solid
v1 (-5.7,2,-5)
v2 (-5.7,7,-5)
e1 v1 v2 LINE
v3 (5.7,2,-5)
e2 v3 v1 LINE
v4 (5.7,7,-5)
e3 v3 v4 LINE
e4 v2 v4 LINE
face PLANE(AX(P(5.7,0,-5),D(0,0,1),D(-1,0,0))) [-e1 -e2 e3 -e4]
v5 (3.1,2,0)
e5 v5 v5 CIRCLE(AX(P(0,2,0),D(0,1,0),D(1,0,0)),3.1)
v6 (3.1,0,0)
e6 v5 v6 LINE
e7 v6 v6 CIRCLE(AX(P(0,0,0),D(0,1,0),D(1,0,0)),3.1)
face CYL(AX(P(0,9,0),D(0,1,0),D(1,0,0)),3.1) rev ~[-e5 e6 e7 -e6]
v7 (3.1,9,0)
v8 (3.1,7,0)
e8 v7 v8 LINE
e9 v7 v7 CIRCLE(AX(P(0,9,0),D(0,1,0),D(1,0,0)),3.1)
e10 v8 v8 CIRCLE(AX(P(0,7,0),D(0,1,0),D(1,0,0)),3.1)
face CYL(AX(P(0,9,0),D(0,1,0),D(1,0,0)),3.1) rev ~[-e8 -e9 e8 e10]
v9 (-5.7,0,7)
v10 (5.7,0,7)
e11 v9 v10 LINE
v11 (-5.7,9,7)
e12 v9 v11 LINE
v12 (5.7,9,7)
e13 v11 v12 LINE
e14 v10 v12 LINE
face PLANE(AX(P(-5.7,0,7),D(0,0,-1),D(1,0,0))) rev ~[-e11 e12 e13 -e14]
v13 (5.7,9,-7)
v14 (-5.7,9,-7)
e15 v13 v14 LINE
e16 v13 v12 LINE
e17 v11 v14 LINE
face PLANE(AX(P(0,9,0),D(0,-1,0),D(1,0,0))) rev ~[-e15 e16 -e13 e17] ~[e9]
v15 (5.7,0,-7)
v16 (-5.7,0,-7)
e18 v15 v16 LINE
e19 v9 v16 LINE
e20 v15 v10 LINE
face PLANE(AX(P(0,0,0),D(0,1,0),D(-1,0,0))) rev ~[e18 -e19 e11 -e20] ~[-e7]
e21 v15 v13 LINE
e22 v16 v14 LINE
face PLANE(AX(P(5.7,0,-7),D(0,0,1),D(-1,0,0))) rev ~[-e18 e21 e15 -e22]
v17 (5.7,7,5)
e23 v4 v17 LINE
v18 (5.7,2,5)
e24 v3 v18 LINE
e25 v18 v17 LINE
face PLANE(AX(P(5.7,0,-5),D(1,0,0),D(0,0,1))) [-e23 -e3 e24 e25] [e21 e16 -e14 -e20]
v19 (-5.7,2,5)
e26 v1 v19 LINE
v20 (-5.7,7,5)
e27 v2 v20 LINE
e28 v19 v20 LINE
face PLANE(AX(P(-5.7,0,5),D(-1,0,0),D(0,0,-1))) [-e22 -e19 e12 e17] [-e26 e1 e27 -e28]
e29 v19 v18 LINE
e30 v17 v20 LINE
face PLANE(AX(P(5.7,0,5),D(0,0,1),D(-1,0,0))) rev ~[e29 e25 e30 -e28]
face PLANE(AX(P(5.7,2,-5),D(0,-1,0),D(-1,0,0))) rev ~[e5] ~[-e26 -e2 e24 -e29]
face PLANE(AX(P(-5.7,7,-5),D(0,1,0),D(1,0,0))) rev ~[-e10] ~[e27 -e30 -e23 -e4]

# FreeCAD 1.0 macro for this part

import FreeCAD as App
import Part
import Sketcher
from FreeCAD import Vector
Q = App.Units.Quantity


def add_polygon(sketch, points):
    """Adds a closed chain of lines whose ends are joined by coincident constraints."""
    first, n = sketch.GeometryCount, len(points)
    for a, b in zip(points, points[1:] + points[:1]):
        sketch.addGeometry(Part.LineSegment(App.Vector(*a, 0), App.Vector(*b, 0)), False)
    for i in range(n):
        sketch.addConstraint(Sketcher.Constraint("Coincident", first + i, 2, first + (i + 1) % n, 1))

doc = App.newDocument("Part")
body = doc.addObject("PartDesign::Body", "Body")
body.AllowCompound = True

sketch1 = body.newObject("Sketcher::SketchObject", "Sketch")
sketch1.AttachmentSupport = (doc.getObject("XZ_Plane"), [""])
sketch1.MapMode = "FlatFace"
add_polygon(sketch1, [(-5.7, 5), (5.7, 5), (5.7, -5), (-5.7, -5)])
sketch1.addGeometry(Part.Circle(Vector(0, 0, 0), Vector(0, 0, 1), 2.6), False)
sketch1.addConstraint(Sketcher.Constraint("Horizontal", 0))
sketch1.addConstraint(Sketcher.Constraint("Vertical", 1))
sketch1.addConstraint(Sketcher.Constraint("Horizontal", 2))
sketch1.addConstraint(Sketcher.Constraint("Vertical", 3))
sketch1.addConstraint(Sketcher.Constraint("Coincident", 4, 3, -1, 1))
sketch1.addConstraint(Sketcher.Constraint("Symmetric", 0, 2, 2, 2, -1, 1))
sketch1.addConstraint(Sketcher.Constraint("Diameter", 4, Q("5.2 mm")))
sketch1.addConstraint(Sketcher.Constraint("DistanceY", 1, 2, 1, 1, Q("10 mm")))
sketch1.addConstraint(Sketcher.Constraint("DistanceX", 0, 1, 0, 2, Q("11.4 mm")))
pad1 = body.newObject("PartDesign::Pad", "Pad")
pad1.Profile = sketch1
pad1.Length = 9
pad1.Reversed = True

sketch2 = body.newObject("Sketcher::SketchObject", "Sketch001")
sketch2.AttachmentSupport = (doc.getObject("XY_Plane"), [""])
sketch2.MapMode = "FlatFace"
sketch2.AttachmentOffset = App.Placement(Vector(0, 0, -5), App.Rotation())
add_polygon(sketch2, [(6, 7), (6, 2), (-6, 2), (-6, 7)])
sketch2.addConstraint(Sketcher.Constraint("Vertical", 0))
sketch2.addConstraint(Sketcher.Constraint("Horizontal", 1))
sketch2.addConstraint(Sketcher.Constraint("Vertical", 2))
sketch2.addConstraint(Sketcher.Constraint("Horizontal", 3))
sketch2.addConstraint(Sketcher.Constraint("DistanceY", -1, 1, 0, 2, Q("2 mm")))
sketch2.addConstraint(Sketcher.Constraint("DistanceY", 0, 2, 0, 1, Q("5 mm")))
sketch2.addConstraint(Sketcher.Constraint("DistanceX", 1, 2, 1, 1, Q("11.4 mm")))
sketch2.addConstraint(Sketcher.Constraint("DistanceX", -1, 1, 0, 2, Q("5.7 mm")))
pocket1 = body.newObject("PartDesign::Pocket", "Pocket")
pocket1.Profile = sketch2
pocket1.Length = 10.5875
pocket1.Reversed = True

sketch3 = body.newObject("Sketcher::SketchObject", "Sketch002")
sketch3.AttachmentSupport = (doc.getObject("XZ_Plane"), [""])
sketch3.MapMode = "FlatFace"
add_polygon(sketch3, [(5.7, -5), (-5.7, -5), (-5.7, -7), (5.7, -7)])
add_polygon(sketch3, [(-5.7, 7), (-5.7, 5), (5.7, 5), (5.7, 7)])
sketch3.addConstraint(Sketcher.Constraint("Horizontal", 0))
sketch3.addConstraint(Sketcher.Constraint("Vertical", 1))
sketch3.addConstraint(Sketcher.Constraint("Horizontal", 2))
sketch3.addConstraint(Sketcher.Constraint("Vertical", 3))
sketch3.addConstraint(Sketcher.Constraint("Vertical", 4))
sketch3.addConstraint(Sketcher.Constraint("Horizontal", 5))
sketch3.addConstraint(Sketcher.Constraint("Vertical", 6))
sketch3.addConstraint(Sketcher.Constraint("Horizontal", 7))
sketch3.addConstraint(Sketcher.Constraint("Symmetric", 3, 2, 4, 2, -1, 1))
sketch3.addConstraint(Sketcher.Constraint("Symmetric", 1, 2, 6, 2, -1, 1))
sketch3.addConstraint(Sketcher.Constraint("Vertical", 1, 2, 4, 2))
sketch3.addConstraint(Sketcher.Constraint("DistanceY", 1, 2, 1, 1, Q("2 mm")))
sketch3.addConstraint(Sketcher.Constraint("DistanceX", 0, 2, 0, 1, Q("11.4 mm")))
sketch3.addConstraint(Sketcher.Constraint("DistanceY", 2, 2, 6, 2, Q("14 mm")))
pad2 = body.newObject("PartDesign::Pad", "Pad001")
pad2.Profile = sketch3
pad2.Length = 9
pad2.Reversed = True

sketch4 = body.newObject("Sketcher::SketchObject", "Sketch003")
sketch4.AttachmentSupport = (doc.getObject("XZ_Plane"), [""])
sketch4.MapMode = "FlatFace"
sketch4.AttachmentOffset = App.Placement(Vector(0, 0, -9), App.Rotation())
sketch4.addGeometry(Part.Circle(Vector(0, 0, 0), Vector(0, 0, 1), 3.1), False)
sketch4.addConstraint(Sketcher.Constraint("Coincident", 0, 3, -1, 1))
sketch4.addConstraint(Sketcher.Constraint("Diameter", 0, Q("6.2 mm")))
pocket2 = body.newObject("PartDesign::Pocket", "Pocket001")
pocket2.Profile = sketch4
pocket2.Length = 10
pocket2.Reversed = True

doc.recompute()
